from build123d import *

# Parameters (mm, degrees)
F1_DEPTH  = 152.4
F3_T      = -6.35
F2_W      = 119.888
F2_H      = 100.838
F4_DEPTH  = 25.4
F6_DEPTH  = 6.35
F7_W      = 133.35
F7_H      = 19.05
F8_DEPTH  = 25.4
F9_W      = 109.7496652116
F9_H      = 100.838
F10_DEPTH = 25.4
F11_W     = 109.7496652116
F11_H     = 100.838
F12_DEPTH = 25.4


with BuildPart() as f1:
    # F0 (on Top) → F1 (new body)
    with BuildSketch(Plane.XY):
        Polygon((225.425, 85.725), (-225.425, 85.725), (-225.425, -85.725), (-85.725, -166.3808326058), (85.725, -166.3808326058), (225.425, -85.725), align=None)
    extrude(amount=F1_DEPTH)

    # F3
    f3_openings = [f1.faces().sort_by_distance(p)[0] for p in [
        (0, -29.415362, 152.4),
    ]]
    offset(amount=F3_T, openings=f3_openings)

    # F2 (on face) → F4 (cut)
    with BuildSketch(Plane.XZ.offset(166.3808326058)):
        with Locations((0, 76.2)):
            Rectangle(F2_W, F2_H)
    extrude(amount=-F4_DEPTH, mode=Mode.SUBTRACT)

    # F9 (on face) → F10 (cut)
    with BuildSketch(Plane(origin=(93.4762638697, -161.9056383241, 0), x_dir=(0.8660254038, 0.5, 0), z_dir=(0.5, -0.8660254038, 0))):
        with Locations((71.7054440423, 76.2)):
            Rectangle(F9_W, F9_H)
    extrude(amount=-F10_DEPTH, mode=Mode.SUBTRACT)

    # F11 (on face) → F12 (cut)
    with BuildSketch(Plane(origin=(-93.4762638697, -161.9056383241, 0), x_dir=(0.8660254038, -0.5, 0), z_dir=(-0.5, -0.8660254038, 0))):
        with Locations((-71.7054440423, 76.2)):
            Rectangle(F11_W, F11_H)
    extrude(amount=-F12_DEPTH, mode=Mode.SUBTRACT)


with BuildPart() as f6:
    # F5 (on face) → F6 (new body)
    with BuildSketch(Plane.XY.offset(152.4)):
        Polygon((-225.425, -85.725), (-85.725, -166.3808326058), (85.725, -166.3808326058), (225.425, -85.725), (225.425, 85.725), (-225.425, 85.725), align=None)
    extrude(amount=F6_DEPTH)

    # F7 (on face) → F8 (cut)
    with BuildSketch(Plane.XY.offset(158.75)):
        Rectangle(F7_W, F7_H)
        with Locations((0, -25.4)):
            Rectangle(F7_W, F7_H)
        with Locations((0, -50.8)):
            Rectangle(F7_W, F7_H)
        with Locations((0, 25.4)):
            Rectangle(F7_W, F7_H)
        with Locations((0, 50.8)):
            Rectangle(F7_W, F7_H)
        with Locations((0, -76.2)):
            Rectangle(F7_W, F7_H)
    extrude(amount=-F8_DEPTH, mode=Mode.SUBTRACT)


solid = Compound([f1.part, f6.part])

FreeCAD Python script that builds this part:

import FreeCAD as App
import Part
import Sketcher
from FreeCAD import Vector
Q = App.Units.Quantity


def faces_at(feature, points):
    """Names of the faces that lie closest to the given points."""
    faces = feature.Shape.Faces
    near = lambda p: min(range(len(faces)), key=lambda i: faces[i].distToShape(Part.Vertex(*p))[0])
    return sorted({f"Face{near(p) + 1}" for p in points})


def add_polygon(sketch, points):
    """Adds a closed chain of lines whose ends are joined by coincident constraints."""
    first, n = sketch.GeometryCount, len(points)
    for a, b in zip(points, points[1:] + points[:1]):
        sketch.addGeometry(Part.LineSegment(App.Vector(*a, 0), App.Vector(*b, 0)), False)
    for i in range(n):
        sketch.addConstraint(Sketcher.Constraint("Coincident", first + i, 2, first + (i + 1) % n, 1))

doc = App.newDocument("Part")
params = doc.addObject("Spreadsheet::Sheet", "Params")
for row, (alias, value) in enumerate([
    ("sketch1_width", "17.75 in"),
    ("sketch1_width2", "6.75 in"),
    ("pad1_length", "6 in"),
    ("thickness_wall", "0.25 in"),
    ("sketch2_width", "4.72 in"),
    ("sketch2_height", "3.97 in"),
    ("pocket1_length", "1 in"),
    ("sketch3_height", "3.97 in"),
    ("pocket2_length", "1 in"),
    ("sketch4_height", "3.97 in"),
    ("pocket3_length", "1 in"),
    ("sketch5_width", "6.75 in"),
    ("sketch5_width2", "17.75 in"),
    ("pad2_length", "0.25 in"),
    ("sketch6_width", "5.25 in"),
    ("sketch6_height", "0.75 in"),
    ("pocket4_length", "1 in"),
], start=1):
    params.set(f"A{row}", alias)
    params.set(f"B{row}", "=" + value)
    params.setAlias(f"B{row}", alias)

body = doc.addObject("PartDesign::Body", "Body")

sketch1 = doc.addObject("Sketcher::SketchObject", "Sketch")
body.addObject(sketch1)
sketch1.AttachmentSupport = (doc.XY_Plane, [""])
sketch1.MapMode = "FlatFace"
add_polygon(sketch1, [(225, 86), (-225, 86), (-225, -86), (-86, -166), (86, -166), (225, -86)])
sketch1.addConstraint(Sketcher.Constraint("Horizontal", 0))
sketch1.addConstraint(Sketcher.Constraint("Vertical", 1))
sketch1.addConstraint(Sketcher.Constraint("Horizontal", 3))
sketch1.addConstraint(Sketcher.Constraint("Vertical", 5))
sketch1.addConstraint(Sketcher.Constraint("Symmetric", 0, 2, 4, 2, -1, 1))
sketch1.addConstraint(Sketcher.Constraint("Horizontal", 1, 2, 4, 2))
sketch1.addConstraint(Sketcher.Constraint("Equal", 3, 1))
sketch1.addConstraint(Sketcher.Constraint("Equal", 2, 4))
sketch1.addConstraint(Sketcher.Constraint("Angle", 2, Q("-30 deg")))
sketch1.addConstraint(Sketcher.Constraint("DistanceX", 0, 2, 0, 1, Q("17.75 in")))
sketch1.addConstraint(Sketcher.Constraint("DistanceX", 3, 1, 3, 2, Q("6.75 in")))
sketch1.setExpression("Constraints[15]", "Params.sketch1_width")
sketch1.setExpression("Constraints[16]", "Params.sketch1_width2")
pad1 = doc.addObject("PartDesign::Pad", "Pad")
body.addObject(pad1)
pad1.Profile = sketch1
pad1.setExpression("Length", "Params.pad1_length")
doc.recompute()

thickness = doc.addObject("PartDesign::Thickness", "Thickness")
body.addObject(thickness)
thickness.Base = (pad1, faces_at(pad1, [(0, -40.328, 152.4)]))
thickness.setExpression("Value", "Params.thickness_wall")
thickness.Reversed = True
thickness.Join = "Arc"

sketch2 = doc.addObject("Sketcher::SketchObject", "Sketch001")
body.addObject(sketch2)
sketch2.AttachmentSupport = (doc.XZ_Plane, [""])
sketch2.MapMode = "FlatFace"
sketch2.AttachmentOffset = App.Placement(Vector(0, 0, 166.380833), App.Rotation())
add_polygon(sketch2, [(-60, 127), (-60, 26), (60, 26), (60, 127)])
sketch2.addConstraint(Sketcher.Constraint("Vertical", 0))
sketch2.addConstraint(Sketcher.Constraint("Horizontal", 1))
sketch2.addConstraint(Sketcher.Constraint("Vertical", 2))
sketch2.addConstraint(Sketcher.Constraint("Horizontal", 3))
sketch2.addConstraint(Sketcher.Constraint("DistanceX", 1, 1, 1, 2, Q("4.72 in")))
sketch2.addConstraint(Sketcher.Constraint("DistanceY", 0, 2, 0, 1, Q("3.97 in")))
sketch2.addConstraint(Sketcher.Constraint("DistanceX", 0, 2, -1, 1, Q("2.36 in")))
sketch2.addConstraint(Sketcher.Constraint("DistanceY", -1, 1, 0, 2, Q("1.015 in")))
sketch2.setExpression("Constraints[8]", "Params.sketch2_width")
sketch2.setExpression("Constraints[9]", "Params.sketch2_height")
pocket1 = doc.addObject("PartDesign::Pocket", "Pocket")
body.addObject(pocket1)
pocket1.Profile = sketch2
pocket1.setExpression("Length", "Params.pocket1_length")

sketch3 = doc.addObject("Sketcher::SketchObject", "Sketch002")
body.addObject(sketch3)
sketch3.Placement = App.Placement(Vector(93.476264, -161.905638, 0), App.Rotation(Vector(0.866025404, 0.5, 0), Vector(0, 0, 1), Vector(0.5, -0.866025404, 0), "ZXY"))
add_polygon(sketch3, [(17, 127), (17, 26), (127, 26), (127, 127)])
sketch3.addConstraint(Sketcher.Constraint("Vertical", 0))
sketch3.addConstraint(Sketcher.Constraint("Horizontal", 1))
sketch3.addConstraint(Sketcher.Constraint("Vertical", 2))
sketch3.addConstraint(Sketcher.Constraint("Horizontal", 3))
sketch3.addConstraint(Sketcher.Constraint("DistanceY", 0, 2, 0, 1, Q("3.97 in")))
sketch3.addConstraint(Sketcher.Constraint("DistanceY", -1, 1, 0, 2, Q("1.015 in")))
sketch3.addConstraint(Sketcher.Constraint("DistanceX", 1, 1, 1, 2, Q("109.749665 mm")))
sketch3.addConstraint(Sketcher.Constraint("DistanceX", -1, 1, 0, 2, Q("16.830611 mm")))
sketch3.setExpression("Constraints[8]", "Params.sketch3_height")
pocket2 = doc.addObject("PartDesign::Pocket", "Pocket001")
body.addObject(pocket2)
pocket2.Profile = sketch3
pocket2.setExpression("Length", "Params.pocket2_length")

sketch4 = doc.addObject("Sketcher::SketchObject", "Sketch003")
body.addObject(sketch4)
sketch4.Placement = App.Placement(Vector(-93.476264, -161.905638, 0), App.Rotation(Vector(0.866025404, -0.5, 0), Vector(0, 0, 1), Vector(-0.5, -0.866025404, 0), "ZXY"))
add_polygon(sketch4, [(-127, 127), (-127, 26), (-17, 26), (-17, 127)])
sketch4.addConstraint(Sketcher.Constraint("Vertical", 0))
sketch4.addConstraint(Sketcher.Constraint("Horizontal", 1))
sketch4.addConstraint(Sketcher.Constraint("Vertical", 2))
sketch4.addConstraint(Sketcher.Constraint("Horizontal", 3))
sketch4.addConstraint(Sketcher.Constraint("DistanceY", 0, 2, 0, 1, Q("3.97 in")))
sketch4.addConstraint(Sketcher.Constraint("DistanceY", -1, 1, 0, 2, Q("1.015 in")))
sketch4.addConstraint(Sketcher.Constraint("DistanceX", 1, 1, 1, 2, Q("109.749665 mm")))
sketch4.addConstraint(Sketcher.Constraint("DistanceX", 1, 2, -1, 1, Q("16.830611 mm")))
sketch4.setExpression("Constraints[8]", "Params.sketch4_height")
pocket3 = doc.addObject("PartDesign::Pocket", "Pocket002")
body.addObject(pocket3)
pocket3.Profile = sketch4
pocket3.setExpression("Length", "Params.pocket3_length")
body2 = doc.addObject("PartDesign::Body", "Body001")

sketch5 = doc.addObject("Sketcher::SketchObject", "Sketch004")
body2.addObject(sketch5)
sketch5.AttachmentSupport = (doc.getObject("XY_Plane001"), [""])
sketch5.MapMode = "FlatFace"
sketch5.AttachmentOffset = App.Placement(Vector(0, 0, 6 * 25.4), App.Rotation())
add_polygon(sketch5, [(-225, -86), (-86, -166), (86, -166), (225, -86), (225, 86), (-225, 86)])
sketch5.addConstraint(Sketcher.Constraint("Horizontal", 1))
sketch5.addConstraint(Sketcher.Constraint("Vertical", 3))
sketch5.addConstraint(Sketcher.Constraint("Horizontal", 4))
sketch5.addConstraint(Sketcher.Constraint("Vertical", 5))
sketch5.addConstraint(Sketcher.Constraint("Symmetric", 2, 2, 4, 2, -1, 1))
sketch5.addConstraint(Sketcher.Constraint("Horizontal", 2, 2, 5, 2))
sketch5.addConstraint(Sketcher.Constraint("Equal", 1, 3))
sketch5.addConstraint(Sketcher.Constraint("Equal", 0, 2))
sketch5.addConstraint(Sketcher.Constraint("Angle", 0, Q("-30 deg")))
sketch5.addConstraint(Sketcher.Constraint("DistanceX", 1, 1, 1, 2, Q("6.75 in")))
sketch5.addConstraint(Sketcher.Constraint("DistanceX", 4, 2, 4, 1, Q("17.75 in")))
sketch5.setExpression("Constraints[15]", "Params.sketch5_width")
sketch5.setExpression("Constraints[16]", "Params.sketch5_width2")
pad2 = doc.addObject("PartDesign::Pad", "Pad001")
body2.addObject(pad2)
pad2.Profile = sketch5
pad2.setExpression("Length", "Params.pad2_length")

sketch6 = doc.addObject("Sketcher::SketchObject", "Sketch005")
body2.addObject(sketch6)
sketch6.AttachmentSupport = (doc.getObject("XY_Plane001"), [""])
sketch6.MapMode = "FlatFace"
sketch6.AttachmentOffset = App.Placement(Vector(0, 0, 6.25 * 25.4), App.Rotation())
add_polygon(sketch6, [(-67, 10), (-67, -10), (67, -10), (67, 10)])
add_polygon(sketch6, [(-67, -16), (-67, -35), (67, -35), (67, -16)])
add_polygon(sketch6, [(-67, -41), (-67, -60), (67, -60), (67, -41)])
add_polygon(sketch6, [(-67, 35), (-67, 16), (67, 16), (67, 35)])
add_polygon(sketch6, [(-67, 60), (-67, 41), (67, 41), (67, 60)])
add_polygon(sketch6, [(-67, -67), (-67, -86), (67, -86), (67, -67)])
sketch6.addConstraint(Sketcher.Constraint("Vertical", 0))
sketch6.addConstraint(Sketcher.Constraint("Horizontal", 1))
sketch6.addConstraint(Sketcher.Constraint("Vertical", 2))
sketch6.addConstraint(Sketcher.Constraint("Horizontal", 3))
sketch6.addConstraint(Sketcher.Constraint("Vertical", 4))
sketch6.addConstraint(Sketcher.Constraint("Horizontal", 5))
sketch6.addConstraint(Sketcher.Constraint("Vertical", 6))
sketch6.addConstraint(Sketcher.Constraint("Horizontal", 7))
sketch6.addConstraint(Sketcher.Constraint("Vertical", 8))
sketch6.addConstraint(Sketcher.Constraint("Horizontal", 9))
sketch6.addConstraint(Sketcher.Constraint("Vertical", 10))
sketch6.addConstraint(Sketcher.Constraint("Horizontal", 11))
sketch6.addConstraint(Sketcher.Constraint("Vertical", 12))
sketch6.addConstraint(Sketcher.Constraint("Horizontal", 13))
sketch6.addConstraint(Sketcher.Constraint("Vertical", 14))
sketch6.addConstraint(Sketcher.Constraint("Horizontal", 15))
sketch6.addConstraint(Sketcher.Constraint("Vertical", 16))
sketch6.addConstraint(Sketcher.Constraint("Horizontal", 17))
sketch6.addConstraint(Sketcher.Constraint("Vertical", 18))
sketch6.addConstraint(Sketcher.Constraint("Horizontal", 19))
sketch6.addConstraint(Sketcher.Constraint("Vertical", 20))
sketch6.addConstraint(Sketcher.Constraint("Horizontal", 21))
sketch6.addConstraint(Sketcher.Constraint("Vertical", 22))
sketch6.addConstraint(Sketcher.Constraint("Horizontal", 23))
sketch6.addConstraint(Sketcher.Constraint("Symmetric", 0, 2, 2, 2, -1, 1))
sketch6.addConstraint(Sketcher.Constraint("Symmetric", 6, 2, 12, 2, -1, 1))
sketch6.addConstraint(Sketcher.Constraint("Symmetric", 4, 2, 14, 2, -1, 1))
sketch6.addConstraint(Sketcher.Constraint("Symmetric", 10, 2, 16, 2, -1, 1))
sketch6.addConstraint(Sketcher.Constraint("Symmetric", 8, 2, 18, 2, -1, 1))
sketch6.addConstraint(Sketcher.Constraint("Vertical", 3, 2, 4, 2))
sketch6.addConstraint(Sketcher.Constraint("Vertical", 2, 2, 5, 2))
sketch6.addConstraint(Sketcher.Constraint("Vertical", 7, 2, 8, 2))
sketch6.addConstraint(Sketcher.Constraint("Vertical", 6, 2, 9, 2))
sketch6.addConstraint(Sketcher.Constraint("Vertical", 19, 2, 20, 2))
sketch6.addConstraint(Sketcher.Constraint("Vertical", 18, 2, 21, 2))
sketch6.addConstraint(Sketcher.Constraint("Equal", 2, 4))
sketch6.addConstraint(Sketcher.Constraint("Equal", 6, 8))
sketch6.addConstraint(Sketcher.Constraint("Equal", 18, 20))
sketch6.addConstraint(Sketcher.Constraint("DistanceY", 4, 2, 0, 2, Q("1 in")))
sketch6.addConstraint(Sketcher.Constraint("DistanceY", 8, 2, 4, 2, Q("1 in")))
sketch6.addConstraint(Sketcher.Constraint("DistanceY", 20, 2, 8, 2, Q("1 in")))
sketch6.addConstraint(Sketcher.Constraint("DistanceX", 1, 1, 1, 2, Q("5.25 in")))
sketch6.addConstraint(Sketcher.Constraint("DistanceY", 0, 2, 0, 1, Q("0.75 in")))
sketch6.setExpression("Constraints[65]", "Params.sketch6_width")
sketch6.setExpression("Constraints[66]", "Params.sketch6_height")
pocket4 = doc.addObject("PartDesign::Pocket", "Pocket003")
body2.addObject(pocket4)
pocket4.Profile = sketch6
pocket4.setExpression("Length", "Params.pocket4_length")

doc.recompute()
